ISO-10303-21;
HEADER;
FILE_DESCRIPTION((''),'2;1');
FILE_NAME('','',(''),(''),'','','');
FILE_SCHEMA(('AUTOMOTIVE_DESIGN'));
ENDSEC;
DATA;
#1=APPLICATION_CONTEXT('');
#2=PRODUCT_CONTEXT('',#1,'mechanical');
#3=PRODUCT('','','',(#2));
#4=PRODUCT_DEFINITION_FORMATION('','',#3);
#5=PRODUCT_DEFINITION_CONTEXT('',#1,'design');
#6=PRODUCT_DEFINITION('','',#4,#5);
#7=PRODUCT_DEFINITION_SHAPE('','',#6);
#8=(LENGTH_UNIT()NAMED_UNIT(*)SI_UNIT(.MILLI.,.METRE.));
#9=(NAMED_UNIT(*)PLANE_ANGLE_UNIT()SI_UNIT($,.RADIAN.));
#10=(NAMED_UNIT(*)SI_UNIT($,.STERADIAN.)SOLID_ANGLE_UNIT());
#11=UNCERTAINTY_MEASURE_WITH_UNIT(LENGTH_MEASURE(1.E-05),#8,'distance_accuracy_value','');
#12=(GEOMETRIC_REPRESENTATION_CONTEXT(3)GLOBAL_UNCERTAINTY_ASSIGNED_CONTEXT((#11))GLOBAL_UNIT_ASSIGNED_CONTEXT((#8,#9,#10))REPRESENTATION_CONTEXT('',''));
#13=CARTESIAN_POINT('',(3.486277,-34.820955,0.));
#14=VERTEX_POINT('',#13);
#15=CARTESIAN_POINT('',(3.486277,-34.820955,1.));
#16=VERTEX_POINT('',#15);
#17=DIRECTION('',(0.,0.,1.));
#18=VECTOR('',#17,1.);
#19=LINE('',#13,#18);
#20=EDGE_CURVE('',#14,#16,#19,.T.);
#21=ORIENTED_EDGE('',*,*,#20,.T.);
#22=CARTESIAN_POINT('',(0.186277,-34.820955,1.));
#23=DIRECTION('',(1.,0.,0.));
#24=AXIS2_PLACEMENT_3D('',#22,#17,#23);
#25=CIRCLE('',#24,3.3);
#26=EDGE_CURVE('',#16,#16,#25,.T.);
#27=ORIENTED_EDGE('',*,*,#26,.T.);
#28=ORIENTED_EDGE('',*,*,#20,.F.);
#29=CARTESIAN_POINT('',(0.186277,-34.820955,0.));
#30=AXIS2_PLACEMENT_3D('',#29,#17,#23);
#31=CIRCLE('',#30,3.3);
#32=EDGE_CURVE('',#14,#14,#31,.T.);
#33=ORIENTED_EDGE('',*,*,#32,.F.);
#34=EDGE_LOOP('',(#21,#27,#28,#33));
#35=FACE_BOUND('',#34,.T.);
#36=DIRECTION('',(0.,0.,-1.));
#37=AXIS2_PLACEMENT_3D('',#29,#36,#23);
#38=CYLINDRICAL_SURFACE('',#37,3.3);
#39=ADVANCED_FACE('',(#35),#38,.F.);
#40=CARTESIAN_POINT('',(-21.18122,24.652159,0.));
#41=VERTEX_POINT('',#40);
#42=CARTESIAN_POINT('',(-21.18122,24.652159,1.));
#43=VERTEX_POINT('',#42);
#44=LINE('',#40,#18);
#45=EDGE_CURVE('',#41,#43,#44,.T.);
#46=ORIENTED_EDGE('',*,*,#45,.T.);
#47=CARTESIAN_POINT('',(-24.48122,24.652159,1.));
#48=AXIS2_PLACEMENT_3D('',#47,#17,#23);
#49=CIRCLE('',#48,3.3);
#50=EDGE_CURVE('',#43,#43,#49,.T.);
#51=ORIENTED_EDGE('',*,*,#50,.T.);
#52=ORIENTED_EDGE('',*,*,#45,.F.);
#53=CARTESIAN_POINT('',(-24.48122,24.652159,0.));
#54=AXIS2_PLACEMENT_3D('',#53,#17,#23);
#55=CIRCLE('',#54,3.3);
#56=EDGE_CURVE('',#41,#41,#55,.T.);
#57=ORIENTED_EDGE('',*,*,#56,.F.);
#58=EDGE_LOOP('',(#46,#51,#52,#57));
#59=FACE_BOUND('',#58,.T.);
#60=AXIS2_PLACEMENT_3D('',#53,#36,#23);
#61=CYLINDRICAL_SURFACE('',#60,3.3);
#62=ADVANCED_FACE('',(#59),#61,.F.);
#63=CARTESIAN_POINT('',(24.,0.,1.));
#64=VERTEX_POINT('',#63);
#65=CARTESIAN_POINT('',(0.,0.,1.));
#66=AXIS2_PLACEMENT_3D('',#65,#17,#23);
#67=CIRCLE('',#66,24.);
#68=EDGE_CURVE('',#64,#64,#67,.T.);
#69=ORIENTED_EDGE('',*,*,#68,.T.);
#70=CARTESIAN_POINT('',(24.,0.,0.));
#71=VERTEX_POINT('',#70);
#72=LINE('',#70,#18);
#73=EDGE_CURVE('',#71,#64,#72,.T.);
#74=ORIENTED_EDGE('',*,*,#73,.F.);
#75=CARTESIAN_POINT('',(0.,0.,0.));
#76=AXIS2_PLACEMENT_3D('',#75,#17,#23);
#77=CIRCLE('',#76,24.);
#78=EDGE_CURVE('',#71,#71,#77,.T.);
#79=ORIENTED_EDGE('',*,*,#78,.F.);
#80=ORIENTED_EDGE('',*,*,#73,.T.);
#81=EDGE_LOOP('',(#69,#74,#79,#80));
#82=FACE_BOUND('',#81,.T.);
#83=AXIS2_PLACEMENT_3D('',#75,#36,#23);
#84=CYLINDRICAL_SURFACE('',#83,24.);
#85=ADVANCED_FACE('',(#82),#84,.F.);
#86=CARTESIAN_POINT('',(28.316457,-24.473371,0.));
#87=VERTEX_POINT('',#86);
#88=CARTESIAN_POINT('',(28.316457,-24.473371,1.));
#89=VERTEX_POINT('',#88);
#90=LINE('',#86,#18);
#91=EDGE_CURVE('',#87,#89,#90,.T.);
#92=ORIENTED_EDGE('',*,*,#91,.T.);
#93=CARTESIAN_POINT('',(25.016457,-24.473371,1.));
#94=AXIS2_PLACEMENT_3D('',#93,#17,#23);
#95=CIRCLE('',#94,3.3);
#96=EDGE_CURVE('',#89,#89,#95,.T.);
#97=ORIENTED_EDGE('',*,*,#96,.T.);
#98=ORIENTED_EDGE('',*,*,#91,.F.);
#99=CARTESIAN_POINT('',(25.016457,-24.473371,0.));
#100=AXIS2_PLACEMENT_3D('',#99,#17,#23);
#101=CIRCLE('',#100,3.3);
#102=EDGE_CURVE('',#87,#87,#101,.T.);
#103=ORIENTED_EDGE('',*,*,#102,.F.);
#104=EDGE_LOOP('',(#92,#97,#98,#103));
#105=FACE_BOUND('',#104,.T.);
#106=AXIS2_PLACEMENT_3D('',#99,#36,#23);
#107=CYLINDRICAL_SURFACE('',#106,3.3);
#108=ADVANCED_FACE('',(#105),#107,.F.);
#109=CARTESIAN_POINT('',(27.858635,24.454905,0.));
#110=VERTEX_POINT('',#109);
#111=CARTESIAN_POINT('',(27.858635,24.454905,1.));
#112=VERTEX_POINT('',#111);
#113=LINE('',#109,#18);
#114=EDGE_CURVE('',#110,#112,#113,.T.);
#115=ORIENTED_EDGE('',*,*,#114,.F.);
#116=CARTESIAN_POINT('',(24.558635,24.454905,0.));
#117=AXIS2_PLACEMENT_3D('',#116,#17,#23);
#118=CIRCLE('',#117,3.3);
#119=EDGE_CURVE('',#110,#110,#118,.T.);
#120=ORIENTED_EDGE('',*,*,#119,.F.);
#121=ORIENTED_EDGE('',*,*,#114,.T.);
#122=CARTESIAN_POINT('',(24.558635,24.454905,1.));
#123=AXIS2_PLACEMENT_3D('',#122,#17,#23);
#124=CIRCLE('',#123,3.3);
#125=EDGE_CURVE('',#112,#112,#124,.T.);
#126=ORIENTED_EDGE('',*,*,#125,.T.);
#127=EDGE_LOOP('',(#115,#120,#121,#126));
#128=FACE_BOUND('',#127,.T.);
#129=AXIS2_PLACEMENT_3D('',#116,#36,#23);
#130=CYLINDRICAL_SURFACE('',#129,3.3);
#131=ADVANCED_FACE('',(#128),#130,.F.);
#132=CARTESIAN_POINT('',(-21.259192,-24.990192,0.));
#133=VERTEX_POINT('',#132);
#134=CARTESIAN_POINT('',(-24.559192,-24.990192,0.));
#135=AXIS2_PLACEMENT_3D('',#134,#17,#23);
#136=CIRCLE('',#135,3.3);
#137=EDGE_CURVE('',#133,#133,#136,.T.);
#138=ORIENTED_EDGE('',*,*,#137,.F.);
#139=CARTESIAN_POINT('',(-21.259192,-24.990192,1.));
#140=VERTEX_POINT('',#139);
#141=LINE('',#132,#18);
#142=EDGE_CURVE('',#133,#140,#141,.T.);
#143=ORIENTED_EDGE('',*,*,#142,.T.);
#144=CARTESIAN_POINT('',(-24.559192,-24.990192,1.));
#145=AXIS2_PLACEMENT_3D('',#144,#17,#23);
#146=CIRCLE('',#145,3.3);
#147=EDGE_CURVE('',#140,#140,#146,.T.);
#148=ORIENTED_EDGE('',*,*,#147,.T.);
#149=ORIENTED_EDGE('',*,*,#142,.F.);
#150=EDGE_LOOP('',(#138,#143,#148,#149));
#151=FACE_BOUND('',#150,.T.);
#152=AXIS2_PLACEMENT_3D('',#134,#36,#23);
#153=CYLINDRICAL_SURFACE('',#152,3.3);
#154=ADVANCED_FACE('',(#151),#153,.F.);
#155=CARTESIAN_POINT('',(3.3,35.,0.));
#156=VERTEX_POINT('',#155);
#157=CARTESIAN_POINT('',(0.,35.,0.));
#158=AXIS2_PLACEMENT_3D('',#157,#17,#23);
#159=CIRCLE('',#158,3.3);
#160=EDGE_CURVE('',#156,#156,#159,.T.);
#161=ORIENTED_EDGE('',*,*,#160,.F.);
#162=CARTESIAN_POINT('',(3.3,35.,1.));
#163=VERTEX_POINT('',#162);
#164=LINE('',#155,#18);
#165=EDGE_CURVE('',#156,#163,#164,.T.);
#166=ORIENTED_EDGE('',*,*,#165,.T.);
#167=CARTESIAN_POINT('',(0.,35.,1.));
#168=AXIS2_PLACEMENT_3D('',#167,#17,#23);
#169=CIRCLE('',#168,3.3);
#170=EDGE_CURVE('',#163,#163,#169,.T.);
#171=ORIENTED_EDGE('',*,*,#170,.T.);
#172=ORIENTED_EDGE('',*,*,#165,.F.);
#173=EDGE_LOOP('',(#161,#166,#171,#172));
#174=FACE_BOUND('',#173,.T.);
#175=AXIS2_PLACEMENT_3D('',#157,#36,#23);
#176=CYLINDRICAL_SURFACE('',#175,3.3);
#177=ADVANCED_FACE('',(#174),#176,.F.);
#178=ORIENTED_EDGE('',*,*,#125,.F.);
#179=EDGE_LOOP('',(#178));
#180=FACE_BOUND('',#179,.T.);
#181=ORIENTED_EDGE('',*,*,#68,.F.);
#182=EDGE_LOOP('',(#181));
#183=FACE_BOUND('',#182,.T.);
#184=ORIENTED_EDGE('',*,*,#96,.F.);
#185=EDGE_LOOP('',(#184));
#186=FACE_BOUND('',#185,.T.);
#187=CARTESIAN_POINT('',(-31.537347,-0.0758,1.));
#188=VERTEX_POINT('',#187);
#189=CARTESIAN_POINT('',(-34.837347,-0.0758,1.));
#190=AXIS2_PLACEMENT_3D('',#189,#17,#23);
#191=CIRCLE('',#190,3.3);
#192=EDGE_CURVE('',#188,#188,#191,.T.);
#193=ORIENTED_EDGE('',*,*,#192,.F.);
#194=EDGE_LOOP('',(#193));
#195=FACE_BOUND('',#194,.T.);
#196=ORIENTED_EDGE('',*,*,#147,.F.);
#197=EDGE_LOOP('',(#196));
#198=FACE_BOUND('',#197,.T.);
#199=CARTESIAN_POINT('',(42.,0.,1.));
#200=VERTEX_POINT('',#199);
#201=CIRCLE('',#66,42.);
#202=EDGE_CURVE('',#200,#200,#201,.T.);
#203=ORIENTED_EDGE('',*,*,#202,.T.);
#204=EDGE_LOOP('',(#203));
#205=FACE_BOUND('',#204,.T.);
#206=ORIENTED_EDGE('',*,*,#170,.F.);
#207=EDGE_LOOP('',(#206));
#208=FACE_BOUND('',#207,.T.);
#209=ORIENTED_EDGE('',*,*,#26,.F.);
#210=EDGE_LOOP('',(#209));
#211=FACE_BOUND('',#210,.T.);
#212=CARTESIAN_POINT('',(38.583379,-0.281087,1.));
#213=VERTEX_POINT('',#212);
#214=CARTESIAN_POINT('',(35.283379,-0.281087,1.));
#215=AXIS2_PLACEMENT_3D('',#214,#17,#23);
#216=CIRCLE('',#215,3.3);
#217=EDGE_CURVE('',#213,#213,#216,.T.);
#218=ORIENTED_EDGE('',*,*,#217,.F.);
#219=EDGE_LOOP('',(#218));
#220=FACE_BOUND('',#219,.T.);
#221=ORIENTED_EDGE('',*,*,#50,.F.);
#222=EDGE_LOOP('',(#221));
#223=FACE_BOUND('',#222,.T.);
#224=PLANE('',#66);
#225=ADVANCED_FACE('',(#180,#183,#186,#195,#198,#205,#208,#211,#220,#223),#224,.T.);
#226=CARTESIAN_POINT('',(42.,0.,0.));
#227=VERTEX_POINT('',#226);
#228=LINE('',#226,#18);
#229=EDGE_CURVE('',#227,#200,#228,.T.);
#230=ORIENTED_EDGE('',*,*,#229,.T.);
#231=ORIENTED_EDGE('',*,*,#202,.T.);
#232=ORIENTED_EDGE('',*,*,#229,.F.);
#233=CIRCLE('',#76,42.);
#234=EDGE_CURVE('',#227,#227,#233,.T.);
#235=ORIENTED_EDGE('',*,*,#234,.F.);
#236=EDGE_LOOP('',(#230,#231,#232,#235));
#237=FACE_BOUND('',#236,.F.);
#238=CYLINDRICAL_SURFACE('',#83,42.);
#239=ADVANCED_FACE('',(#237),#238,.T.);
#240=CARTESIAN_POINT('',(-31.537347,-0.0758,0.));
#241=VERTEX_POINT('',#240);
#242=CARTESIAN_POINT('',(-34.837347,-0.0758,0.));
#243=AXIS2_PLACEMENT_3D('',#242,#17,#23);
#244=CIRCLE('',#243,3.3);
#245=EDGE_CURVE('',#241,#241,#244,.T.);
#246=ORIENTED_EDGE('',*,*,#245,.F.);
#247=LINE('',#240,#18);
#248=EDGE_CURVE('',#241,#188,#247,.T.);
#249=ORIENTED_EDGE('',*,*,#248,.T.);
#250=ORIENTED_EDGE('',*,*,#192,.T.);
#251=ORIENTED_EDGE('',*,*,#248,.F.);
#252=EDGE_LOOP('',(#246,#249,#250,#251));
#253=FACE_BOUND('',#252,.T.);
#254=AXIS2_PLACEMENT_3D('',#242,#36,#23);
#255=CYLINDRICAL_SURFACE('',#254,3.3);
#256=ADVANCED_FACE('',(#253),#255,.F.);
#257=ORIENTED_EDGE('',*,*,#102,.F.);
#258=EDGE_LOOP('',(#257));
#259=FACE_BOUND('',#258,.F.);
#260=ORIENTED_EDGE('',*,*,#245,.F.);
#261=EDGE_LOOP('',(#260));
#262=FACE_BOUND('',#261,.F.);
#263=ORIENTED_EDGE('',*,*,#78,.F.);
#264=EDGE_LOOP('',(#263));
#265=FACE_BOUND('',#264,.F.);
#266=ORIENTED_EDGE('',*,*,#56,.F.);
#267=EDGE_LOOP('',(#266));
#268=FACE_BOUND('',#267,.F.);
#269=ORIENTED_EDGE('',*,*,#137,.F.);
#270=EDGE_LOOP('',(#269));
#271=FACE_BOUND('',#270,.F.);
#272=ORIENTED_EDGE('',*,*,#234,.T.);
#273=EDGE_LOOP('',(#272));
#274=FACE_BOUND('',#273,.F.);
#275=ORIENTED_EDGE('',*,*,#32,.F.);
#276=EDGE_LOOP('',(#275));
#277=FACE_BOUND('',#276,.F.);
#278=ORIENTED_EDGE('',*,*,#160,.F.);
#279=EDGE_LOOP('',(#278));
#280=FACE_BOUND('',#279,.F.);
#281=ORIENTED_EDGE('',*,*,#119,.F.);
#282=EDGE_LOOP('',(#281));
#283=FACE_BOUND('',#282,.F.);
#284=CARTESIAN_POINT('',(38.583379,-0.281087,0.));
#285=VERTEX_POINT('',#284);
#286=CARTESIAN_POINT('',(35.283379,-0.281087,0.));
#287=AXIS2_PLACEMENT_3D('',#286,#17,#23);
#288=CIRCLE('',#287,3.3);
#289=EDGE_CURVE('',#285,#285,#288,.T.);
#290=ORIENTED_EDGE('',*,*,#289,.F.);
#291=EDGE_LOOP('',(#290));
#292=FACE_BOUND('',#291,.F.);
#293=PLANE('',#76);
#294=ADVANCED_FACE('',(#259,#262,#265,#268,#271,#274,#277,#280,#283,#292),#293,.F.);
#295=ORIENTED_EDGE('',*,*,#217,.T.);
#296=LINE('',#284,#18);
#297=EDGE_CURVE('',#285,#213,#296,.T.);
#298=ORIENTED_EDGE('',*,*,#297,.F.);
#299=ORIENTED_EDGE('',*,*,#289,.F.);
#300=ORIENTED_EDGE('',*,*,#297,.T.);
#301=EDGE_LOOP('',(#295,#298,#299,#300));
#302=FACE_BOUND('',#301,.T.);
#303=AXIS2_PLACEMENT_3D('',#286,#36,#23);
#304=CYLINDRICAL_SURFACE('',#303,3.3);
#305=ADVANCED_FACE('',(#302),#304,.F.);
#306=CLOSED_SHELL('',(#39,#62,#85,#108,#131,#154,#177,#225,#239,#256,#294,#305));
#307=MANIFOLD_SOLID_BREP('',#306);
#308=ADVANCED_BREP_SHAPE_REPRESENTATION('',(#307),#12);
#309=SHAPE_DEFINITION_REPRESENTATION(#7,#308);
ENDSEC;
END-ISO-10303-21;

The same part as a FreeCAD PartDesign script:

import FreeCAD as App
import Part
import Sketcher

V = App.Vector

doc = App.newDocument("Part")
body = doc.addObject("PartDesign::Body", "Body")

# Sketch on XY plane
sketch1 = body.newObject("Sketcher::SketchObject", "Sketch")
sketch1.AttachmentSupport = (doc.getObject("XY_Plane"), [""])
sketch1.MapMode = "FlatFace"
sketch1.addGeometry(Part.Circle(V(0, 0, 0), V(0, 0, 1), 42), False)
sketch1.addGeometry(Part.Circle(V(-24.6, -25, 0), V(0, 0, 1), 3.3), False)
sketch1.addGeometry(Part.Circle(V(0.2, -34.8, 0), V(0, 0, 1), 3.3), False)
sketch1.addGeometry(Part.Circle(V(-34.8, -0.1, 0), V(0, 0, 1), 3.3), False)
sketch1.addGeometry(Part.Circle(V(0, 0, 0), V(0, 0, 1), 24), False)
sketch1.addGeometry(Part.Circle(V(25, -24.5, 0), V(0, 0, 1), 3.3), False)
sketch1.addGeometry(Part.Circle(V(35.3, -0.3, 0), V(0, 0, 1), 3.3), False)
sketch1.addGeometry(Part.Circle(V(-24.5, 24.7, 0), V(0, 0, 1), 3.3), False)
sketch1.addGeometry(Part.Circle(V(0, 35, 0), V(0, 0, 1), 3.3), False)
sketch1.addGeometry(Part.Circle(V(24.6, 24.5, 0), V(0, 0, 1), 3.3), False)
sketch1.addConstraint(Sketcher.Constraint("Coincident", 0, 3, -1, 1))
sketch1.addConstraint(Sketcher.Constraint("Coincident", 4, 3, -1, 1))
sketch1.addConstraint(Sketcher.Constraint("Equal", 1, 2))
sketch1.addConstraint(Sketcher.Constraint("Equal", 2, 3))
sketch1.addConstraint(Sketcher.Constraint("Equal", 3, 5))
sketch1.addConstraint(Sketcher.Constraint("Equal", 5, 6))
sketch1.addConstraint(Sketcher.Constraint("Equal", 6, 7))
sketch1.addConstraint(Sketcher.Constraint("Equal", 7, 8))
sketch1.addConstraint(Sketcher.Constraint("Equal", 8, 9))
sketch1.addConstraint(Sketcher.Constraint("PointOnObject", 8, 3, -2))
sketch1.addConstraint(Sketcher.Constraint("Diameter", 0, 84.0))
sketch1.addConstraint(Sketcher.Constraint("Diameter", 4, 48.0))
sketch1.addConstraint(Sketcher.Constraint("Diameter", 1, 6.6))
sketch1.addConstraint(Sketcher.Constraint("DistanceY", -1, 1, 8, 3, 35.0))
sketch1.addConstraint(Sketcher.Constraint("DistanceY", 3, 3, -1, 1, 0.0758))
sketch1.addConstraint(Sketcher.Constraint("DistanceX", 1, 3, -1, 1, 24.559192))
sketch1.addConstraint(Sketcher.Constraint("DistanceY", 5, 3, -1, 1, 24.473371))
sketch1.addConstraint(Sketcher.Constraint("DistanceX", -1, 1, 6, 3, 35.283379))
sketch1.addConstraint(Sketcher.Constraint("DistanceX", 7, 3, -1, 1, 24.48122))
sketch1.addConstraint(Sketcher.Constraint("DistanceY", -1, 1, 7, 3, 24.652159))
sketch1.addConstraint(Sketcher.Constraint("DistanceX", 1, 3, 2, 3, 24.745469))
sketch1.addConstraint(Sketcher.Constraint("DistanceY", 1, 3, 3, 3, 24.914392))
sketch1.addConstraint(Sketcher.Constraint("DistanceX", 2, 3, 5, 3, 24.83018))
sketch1.addConstraint(Sketcher.Constraint("DistanceY", 6, 3, 9, 3, 24.735992))
sketch1.addConstraint(Sketcher.Constraint("DistanceY", 2, 3, -1, 1, 34.820955))
sketch1.addConstraint(Sketcher.Constraint("DistanceX", 3, 3, -1, 1, 34.837347))
sketch1.addConstraint(Sketcher.Constraint("DistanceY", 6, 3, -1, 1, 0.281087))
sketch1.addConstraint(Sketcher.Constraint("DistanceX", -1, 1, 9, 3, 24.558635))
pad1 = body.newObject("PartDesign::Pad", "Pad")
pad1.Profile = sketch1
pad1.Length = 1

doc.recompute()
